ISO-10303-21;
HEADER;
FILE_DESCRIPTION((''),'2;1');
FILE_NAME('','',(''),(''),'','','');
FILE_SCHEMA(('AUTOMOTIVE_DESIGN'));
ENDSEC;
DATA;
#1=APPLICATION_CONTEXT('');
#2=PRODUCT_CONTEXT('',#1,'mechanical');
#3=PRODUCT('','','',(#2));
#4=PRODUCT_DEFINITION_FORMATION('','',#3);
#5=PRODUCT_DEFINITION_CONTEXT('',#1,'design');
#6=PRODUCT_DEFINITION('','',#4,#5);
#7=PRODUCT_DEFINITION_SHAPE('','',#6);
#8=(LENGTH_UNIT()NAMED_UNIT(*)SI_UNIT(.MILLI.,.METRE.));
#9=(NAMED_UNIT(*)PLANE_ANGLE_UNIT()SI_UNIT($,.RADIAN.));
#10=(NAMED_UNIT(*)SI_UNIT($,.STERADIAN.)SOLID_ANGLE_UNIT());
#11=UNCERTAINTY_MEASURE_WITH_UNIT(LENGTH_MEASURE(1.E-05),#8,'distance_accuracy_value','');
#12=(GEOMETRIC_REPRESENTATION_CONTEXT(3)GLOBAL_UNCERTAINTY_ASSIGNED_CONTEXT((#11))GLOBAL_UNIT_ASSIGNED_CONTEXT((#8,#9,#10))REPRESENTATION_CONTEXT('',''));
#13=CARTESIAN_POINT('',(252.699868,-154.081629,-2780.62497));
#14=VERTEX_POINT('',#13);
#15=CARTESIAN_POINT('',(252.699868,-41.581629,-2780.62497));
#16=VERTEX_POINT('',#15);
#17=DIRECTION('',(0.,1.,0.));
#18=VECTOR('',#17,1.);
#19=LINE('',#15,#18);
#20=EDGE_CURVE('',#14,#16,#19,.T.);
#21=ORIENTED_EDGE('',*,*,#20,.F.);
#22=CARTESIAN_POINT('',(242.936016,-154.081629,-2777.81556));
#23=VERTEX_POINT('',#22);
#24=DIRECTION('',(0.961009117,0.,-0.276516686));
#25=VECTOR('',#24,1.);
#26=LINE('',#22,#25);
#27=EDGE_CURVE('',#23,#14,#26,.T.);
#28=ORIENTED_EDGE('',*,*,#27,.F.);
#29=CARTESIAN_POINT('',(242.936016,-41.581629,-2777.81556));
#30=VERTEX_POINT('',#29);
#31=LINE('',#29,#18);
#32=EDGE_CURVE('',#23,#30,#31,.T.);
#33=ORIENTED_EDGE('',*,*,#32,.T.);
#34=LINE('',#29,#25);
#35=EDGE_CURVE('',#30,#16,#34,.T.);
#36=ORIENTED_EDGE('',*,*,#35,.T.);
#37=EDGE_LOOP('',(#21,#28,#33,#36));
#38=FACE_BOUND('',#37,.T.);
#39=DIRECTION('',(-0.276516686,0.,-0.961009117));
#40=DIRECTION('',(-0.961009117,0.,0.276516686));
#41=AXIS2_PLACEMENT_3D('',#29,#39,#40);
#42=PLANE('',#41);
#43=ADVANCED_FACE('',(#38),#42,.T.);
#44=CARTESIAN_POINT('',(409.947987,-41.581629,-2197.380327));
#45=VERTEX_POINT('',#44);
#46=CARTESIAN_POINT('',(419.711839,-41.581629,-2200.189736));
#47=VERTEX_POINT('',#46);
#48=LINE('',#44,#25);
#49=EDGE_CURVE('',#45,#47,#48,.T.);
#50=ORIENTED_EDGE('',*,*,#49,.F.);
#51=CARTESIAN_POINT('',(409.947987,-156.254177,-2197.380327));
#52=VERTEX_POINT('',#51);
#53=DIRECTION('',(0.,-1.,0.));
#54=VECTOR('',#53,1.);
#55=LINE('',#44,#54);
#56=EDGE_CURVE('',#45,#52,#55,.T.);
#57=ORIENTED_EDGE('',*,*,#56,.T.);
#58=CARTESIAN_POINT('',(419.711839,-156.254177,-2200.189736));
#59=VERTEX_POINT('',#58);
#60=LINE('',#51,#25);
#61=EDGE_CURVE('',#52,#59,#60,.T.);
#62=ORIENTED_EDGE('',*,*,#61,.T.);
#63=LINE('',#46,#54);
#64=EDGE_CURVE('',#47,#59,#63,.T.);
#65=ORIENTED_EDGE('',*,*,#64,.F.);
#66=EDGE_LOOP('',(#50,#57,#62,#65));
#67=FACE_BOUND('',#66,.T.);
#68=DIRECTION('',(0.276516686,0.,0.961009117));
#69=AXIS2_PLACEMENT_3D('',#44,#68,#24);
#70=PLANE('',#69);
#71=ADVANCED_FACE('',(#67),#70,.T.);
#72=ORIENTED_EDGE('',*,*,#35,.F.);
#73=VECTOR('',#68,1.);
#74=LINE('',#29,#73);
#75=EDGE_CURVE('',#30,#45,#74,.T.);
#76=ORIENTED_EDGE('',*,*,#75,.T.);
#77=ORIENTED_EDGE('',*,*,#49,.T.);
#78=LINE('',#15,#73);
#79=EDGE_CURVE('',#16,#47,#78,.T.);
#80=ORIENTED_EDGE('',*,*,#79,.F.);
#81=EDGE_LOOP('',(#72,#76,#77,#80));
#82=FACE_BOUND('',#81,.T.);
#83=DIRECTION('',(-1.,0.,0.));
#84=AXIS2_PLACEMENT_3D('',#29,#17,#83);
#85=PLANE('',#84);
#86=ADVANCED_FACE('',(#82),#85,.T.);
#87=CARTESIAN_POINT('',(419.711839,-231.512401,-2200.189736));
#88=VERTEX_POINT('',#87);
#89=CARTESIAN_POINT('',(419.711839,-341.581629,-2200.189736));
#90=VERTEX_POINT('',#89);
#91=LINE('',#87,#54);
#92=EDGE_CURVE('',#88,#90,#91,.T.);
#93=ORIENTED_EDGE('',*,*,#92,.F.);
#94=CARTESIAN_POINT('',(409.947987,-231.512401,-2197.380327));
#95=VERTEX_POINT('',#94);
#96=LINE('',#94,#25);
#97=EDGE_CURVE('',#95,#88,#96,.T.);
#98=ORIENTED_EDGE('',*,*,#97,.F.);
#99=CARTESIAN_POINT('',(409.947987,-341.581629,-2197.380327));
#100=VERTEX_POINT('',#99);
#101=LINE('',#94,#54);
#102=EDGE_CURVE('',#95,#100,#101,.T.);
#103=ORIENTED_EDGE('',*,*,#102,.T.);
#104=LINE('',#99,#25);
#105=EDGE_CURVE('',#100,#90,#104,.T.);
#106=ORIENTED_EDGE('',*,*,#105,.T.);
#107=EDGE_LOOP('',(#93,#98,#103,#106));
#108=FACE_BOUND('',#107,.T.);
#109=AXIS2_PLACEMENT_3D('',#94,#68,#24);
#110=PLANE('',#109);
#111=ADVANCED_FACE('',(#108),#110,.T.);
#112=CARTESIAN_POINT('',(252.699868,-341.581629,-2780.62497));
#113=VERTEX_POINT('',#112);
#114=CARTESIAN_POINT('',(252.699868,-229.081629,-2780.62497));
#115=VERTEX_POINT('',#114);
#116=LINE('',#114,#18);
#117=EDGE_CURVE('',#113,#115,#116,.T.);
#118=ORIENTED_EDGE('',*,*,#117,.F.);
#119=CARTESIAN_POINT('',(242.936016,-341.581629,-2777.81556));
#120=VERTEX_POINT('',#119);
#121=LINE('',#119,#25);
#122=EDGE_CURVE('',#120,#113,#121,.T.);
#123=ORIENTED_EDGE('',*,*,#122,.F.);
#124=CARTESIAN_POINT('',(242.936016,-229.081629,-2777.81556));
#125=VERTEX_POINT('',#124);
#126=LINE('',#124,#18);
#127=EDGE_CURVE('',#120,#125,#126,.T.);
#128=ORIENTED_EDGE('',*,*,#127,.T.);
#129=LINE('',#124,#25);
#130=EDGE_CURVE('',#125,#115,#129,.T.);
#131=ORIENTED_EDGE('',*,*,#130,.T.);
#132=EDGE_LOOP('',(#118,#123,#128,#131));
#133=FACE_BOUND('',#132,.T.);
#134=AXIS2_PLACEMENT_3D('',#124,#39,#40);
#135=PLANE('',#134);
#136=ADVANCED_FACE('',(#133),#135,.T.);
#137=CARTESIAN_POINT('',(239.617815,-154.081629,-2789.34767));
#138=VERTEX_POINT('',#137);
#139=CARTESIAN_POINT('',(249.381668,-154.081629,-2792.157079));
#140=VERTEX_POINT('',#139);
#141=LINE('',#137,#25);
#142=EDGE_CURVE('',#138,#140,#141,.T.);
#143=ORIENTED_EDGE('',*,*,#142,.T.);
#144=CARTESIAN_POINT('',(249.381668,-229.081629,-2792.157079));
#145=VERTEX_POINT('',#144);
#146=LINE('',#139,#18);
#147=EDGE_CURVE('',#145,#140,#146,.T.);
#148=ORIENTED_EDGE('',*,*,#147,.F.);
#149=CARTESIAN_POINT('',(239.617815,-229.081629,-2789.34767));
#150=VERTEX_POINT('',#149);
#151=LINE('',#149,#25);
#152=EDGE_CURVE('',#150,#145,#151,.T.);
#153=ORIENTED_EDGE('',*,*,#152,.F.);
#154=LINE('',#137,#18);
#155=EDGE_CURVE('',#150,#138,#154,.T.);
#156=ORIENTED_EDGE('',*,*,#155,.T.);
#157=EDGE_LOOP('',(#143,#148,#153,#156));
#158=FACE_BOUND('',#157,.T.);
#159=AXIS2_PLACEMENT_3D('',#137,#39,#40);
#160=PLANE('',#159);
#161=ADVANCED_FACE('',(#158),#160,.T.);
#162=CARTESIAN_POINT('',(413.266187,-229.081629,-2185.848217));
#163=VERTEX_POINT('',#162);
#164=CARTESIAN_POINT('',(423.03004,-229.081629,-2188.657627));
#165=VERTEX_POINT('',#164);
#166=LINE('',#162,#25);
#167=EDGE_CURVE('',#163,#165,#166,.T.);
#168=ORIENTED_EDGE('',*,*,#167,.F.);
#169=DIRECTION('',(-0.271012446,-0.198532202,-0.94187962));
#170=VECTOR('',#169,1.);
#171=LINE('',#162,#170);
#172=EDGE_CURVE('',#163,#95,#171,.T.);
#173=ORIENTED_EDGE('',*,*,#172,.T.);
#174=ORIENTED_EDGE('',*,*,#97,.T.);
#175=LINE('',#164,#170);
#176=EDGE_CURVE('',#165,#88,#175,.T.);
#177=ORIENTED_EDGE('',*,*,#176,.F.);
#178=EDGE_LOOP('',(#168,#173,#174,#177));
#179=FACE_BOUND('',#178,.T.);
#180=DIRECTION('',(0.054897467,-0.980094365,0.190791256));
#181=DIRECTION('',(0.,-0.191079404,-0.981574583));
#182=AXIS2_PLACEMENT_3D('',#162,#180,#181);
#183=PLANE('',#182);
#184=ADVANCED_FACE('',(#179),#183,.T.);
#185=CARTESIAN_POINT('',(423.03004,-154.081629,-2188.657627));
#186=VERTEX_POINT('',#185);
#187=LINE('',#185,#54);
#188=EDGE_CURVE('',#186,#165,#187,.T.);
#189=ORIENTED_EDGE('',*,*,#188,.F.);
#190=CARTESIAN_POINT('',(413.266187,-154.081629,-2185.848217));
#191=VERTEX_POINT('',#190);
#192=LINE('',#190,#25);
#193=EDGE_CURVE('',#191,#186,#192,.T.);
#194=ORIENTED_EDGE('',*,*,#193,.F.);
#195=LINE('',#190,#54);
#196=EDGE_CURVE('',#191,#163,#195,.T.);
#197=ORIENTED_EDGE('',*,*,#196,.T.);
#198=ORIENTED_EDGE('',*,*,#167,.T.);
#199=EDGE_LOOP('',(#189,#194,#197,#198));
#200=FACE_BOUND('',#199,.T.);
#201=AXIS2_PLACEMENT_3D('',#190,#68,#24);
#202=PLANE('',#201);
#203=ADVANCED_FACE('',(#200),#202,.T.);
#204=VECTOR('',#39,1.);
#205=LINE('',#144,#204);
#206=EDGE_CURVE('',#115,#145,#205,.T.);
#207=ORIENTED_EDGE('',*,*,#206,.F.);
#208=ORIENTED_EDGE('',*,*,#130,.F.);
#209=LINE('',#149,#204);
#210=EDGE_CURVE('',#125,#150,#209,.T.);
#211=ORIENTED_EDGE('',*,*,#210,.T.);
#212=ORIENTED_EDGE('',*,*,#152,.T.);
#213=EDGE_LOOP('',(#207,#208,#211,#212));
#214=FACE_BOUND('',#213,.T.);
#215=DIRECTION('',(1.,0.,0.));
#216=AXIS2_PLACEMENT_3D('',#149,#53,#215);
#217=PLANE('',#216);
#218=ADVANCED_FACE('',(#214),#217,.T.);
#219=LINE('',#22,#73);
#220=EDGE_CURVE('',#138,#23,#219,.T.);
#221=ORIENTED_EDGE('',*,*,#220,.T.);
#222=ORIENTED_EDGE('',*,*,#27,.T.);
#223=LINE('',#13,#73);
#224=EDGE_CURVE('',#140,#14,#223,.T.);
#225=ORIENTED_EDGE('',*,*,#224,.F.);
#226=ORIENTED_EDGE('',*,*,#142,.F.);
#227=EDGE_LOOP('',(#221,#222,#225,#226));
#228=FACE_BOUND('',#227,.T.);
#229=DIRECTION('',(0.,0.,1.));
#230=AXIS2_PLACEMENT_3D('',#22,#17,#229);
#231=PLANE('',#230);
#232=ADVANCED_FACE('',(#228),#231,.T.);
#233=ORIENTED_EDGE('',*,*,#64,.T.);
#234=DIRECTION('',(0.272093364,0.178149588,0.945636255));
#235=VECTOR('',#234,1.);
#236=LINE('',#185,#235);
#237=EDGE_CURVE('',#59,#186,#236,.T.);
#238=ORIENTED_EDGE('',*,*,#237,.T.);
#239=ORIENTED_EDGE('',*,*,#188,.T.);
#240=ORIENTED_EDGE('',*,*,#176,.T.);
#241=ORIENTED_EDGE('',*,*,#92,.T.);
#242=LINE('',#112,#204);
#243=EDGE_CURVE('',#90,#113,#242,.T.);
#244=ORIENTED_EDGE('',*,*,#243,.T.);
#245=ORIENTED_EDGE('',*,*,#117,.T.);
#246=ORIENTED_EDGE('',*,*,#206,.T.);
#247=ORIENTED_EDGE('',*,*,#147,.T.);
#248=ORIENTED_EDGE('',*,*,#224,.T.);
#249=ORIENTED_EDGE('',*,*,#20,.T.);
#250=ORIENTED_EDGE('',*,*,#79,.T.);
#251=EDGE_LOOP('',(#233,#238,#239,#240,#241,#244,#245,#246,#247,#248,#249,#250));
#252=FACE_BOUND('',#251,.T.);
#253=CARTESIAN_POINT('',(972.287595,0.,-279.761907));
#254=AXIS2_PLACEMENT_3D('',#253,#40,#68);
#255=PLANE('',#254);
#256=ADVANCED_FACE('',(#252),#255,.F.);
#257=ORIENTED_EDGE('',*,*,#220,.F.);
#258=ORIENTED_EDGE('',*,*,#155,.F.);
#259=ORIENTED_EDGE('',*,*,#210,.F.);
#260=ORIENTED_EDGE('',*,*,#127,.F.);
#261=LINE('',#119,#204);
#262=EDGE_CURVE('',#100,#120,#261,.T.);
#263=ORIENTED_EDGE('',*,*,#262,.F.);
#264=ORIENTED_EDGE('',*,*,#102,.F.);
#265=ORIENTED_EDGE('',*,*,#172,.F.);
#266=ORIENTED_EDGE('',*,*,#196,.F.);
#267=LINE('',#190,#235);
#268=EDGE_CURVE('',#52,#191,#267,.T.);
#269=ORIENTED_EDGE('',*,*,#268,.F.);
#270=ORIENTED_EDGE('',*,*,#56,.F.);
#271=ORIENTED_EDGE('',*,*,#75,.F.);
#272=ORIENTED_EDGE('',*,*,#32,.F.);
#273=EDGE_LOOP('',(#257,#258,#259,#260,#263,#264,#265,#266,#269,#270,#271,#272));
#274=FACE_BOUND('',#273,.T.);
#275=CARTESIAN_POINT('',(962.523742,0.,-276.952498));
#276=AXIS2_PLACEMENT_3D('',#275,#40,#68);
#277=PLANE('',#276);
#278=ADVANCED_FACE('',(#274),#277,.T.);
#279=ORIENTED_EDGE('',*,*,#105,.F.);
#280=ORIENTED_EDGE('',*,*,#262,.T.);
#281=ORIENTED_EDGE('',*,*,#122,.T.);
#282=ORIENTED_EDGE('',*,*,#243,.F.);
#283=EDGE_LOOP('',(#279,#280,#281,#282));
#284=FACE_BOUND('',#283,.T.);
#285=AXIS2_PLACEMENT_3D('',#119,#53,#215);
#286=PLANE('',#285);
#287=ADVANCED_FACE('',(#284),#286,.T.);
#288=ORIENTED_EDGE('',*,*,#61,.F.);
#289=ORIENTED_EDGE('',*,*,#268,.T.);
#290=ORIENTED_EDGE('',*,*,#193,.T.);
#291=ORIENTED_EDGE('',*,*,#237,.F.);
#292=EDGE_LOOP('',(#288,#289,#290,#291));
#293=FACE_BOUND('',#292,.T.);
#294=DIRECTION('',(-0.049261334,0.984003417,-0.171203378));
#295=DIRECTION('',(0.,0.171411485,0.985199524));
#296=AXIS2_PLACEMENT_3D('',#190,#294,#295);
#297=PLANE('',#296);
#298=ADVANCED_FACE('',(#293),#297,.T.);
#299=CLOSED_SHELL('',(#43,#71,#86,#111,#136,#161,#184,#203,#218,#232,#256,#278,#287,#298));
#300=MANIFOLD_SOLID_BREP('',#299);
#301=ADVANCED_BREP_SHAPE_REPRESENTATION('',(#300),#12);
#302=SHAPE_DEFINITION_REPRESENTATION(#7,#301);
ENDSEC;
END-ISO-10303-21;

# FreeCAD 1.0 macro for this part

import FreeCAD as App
import Part
import Sketcher

V = App.Vector
Q = App.Units.Quantity


def add_polygon(sketch, points):
    """Adds a closed chain of lines whose ends are joined by coincident constraints."""
    first, n = sketch.GeometryCount, len(points)
    for a, b in zip(points, points[1:] + points[:1]):
        sketch.addGeometry(Part.LineSegment(App.Vector(*a, 0), App.Vector(*b, 0)), False)
    for i in range(n):
        sketch.addConstraint(Sketcher.Constraint("Coincident", first + i, 2, first + (i + 1) % n, 1))

doc = App.newDocument("Part")
body = doc.addObject("PartDesign::Body", "Body")

sketch1 = body.newObject("Sketcher::SketchObject", "Sketch")
sketch1.Placement = App.Placement(V(972.287595, 0, -279.761907), App.Rotation(V(-0.276516686, 0, -0.961009117), V(0, 1.000000001, 0), V(0.961009117, 0, -0.276516686), "ZXY"))
add_polygon(sketch1, [(2602, -42), (1998, -42), (1998, -156), (1986, -154), (1986, -229), (1998, -232), (1998, -342), (2602, -342), (2602, -229), (2614, -229), (2614, -154), (2602, -154)])
sketch1.addConstraint(Sketcher.Constraint("Horizontal", 0))
sketch1.addConstraint(Sketcher.Constraint("Vertical", 1))
sketch1.addConstraint(Sketcher.Constraint("Vertical", 3))
sketch1.addConstraint(Sketcher.Constraint("Vertical", 5))
sketch1.addConstraint(Sketcher.Constraint("Horizontal", 6))
sketch1.addConstraint(Sketcher.Constraint("Vertical", 7))
sketch1.addConstraint(Sketcher.Constraint("Horizontal", 8))
sketch1.addConstraint(Sketcher.Constraint("Vertical", 9))
sketch1.addConstraint(Sketcher.Constraint("Horizontal", 10))
sketch1.addConstraint(Sketcher.Constraint("Vertical", 11))
sketch1.addConstraint(Sketcher.Constraint("Horizontal", 3, 2, 7, 2))
sketch1.addConstraint(Sketcher.Constraint("Horizontal", 2, 2, 9, 2))
sketch1.addConstraint(Sketcher.Constraint("Vertical", 1, 2, 4, 2))
sketch1.addConstraint(Sketcher.Constraint("Vertical", 7, 2, 10, 2))
sketch1.addConstraint(Sketcher.Constraint("Equal", 7, 11))
sketch1.addConstraint(Sketcher.Constraint("DistanceX", 8, 1, 8, 2, Q("12 mm")))
sketch1.addConstraint(Sketcher.Constraint("DistanceY", 3, 2, 3, 1, Q("75 mm")))
sketch1.addConstraint(Sketcher.Constraint("DistanceY", 7, 1, 7, 2, Q("112.5 mm")))
sketch1.addConstraint(Sketcher.Constraint("DistanceX", 2, 2, 1, 2, Q("12 mm")))
sketch1.addConstraint(Sketcher.Constraint("DistanceX", 0, 2, 0, 1, Q("603.985148 mm")))
sketch1.addConstraint(Sketcher.Constraint("DistanceY", 1, 2, 1, 1, Q("114.672549 mm")))
sketch1.addConstraint(Sketcher.Constraint("DistanceY", 4, 2, -1, 1, Q("231.512402 mm")))
sketch1.addConstraint(Sketcher.Constraint("Distance", 4, Q("12.243719 mm")))
sketch1.addConstraint(Sketcher.Constraint("DistanceX", -1, 1, 0, 2, Q("1998.34507 mm")))
pad1 = body.newObject("PartDesign::Pad", "Pad")
pad1.Profile = sketch1
pad1.Length = 10.16
pad1.Reversed = True

doc.recompute()
